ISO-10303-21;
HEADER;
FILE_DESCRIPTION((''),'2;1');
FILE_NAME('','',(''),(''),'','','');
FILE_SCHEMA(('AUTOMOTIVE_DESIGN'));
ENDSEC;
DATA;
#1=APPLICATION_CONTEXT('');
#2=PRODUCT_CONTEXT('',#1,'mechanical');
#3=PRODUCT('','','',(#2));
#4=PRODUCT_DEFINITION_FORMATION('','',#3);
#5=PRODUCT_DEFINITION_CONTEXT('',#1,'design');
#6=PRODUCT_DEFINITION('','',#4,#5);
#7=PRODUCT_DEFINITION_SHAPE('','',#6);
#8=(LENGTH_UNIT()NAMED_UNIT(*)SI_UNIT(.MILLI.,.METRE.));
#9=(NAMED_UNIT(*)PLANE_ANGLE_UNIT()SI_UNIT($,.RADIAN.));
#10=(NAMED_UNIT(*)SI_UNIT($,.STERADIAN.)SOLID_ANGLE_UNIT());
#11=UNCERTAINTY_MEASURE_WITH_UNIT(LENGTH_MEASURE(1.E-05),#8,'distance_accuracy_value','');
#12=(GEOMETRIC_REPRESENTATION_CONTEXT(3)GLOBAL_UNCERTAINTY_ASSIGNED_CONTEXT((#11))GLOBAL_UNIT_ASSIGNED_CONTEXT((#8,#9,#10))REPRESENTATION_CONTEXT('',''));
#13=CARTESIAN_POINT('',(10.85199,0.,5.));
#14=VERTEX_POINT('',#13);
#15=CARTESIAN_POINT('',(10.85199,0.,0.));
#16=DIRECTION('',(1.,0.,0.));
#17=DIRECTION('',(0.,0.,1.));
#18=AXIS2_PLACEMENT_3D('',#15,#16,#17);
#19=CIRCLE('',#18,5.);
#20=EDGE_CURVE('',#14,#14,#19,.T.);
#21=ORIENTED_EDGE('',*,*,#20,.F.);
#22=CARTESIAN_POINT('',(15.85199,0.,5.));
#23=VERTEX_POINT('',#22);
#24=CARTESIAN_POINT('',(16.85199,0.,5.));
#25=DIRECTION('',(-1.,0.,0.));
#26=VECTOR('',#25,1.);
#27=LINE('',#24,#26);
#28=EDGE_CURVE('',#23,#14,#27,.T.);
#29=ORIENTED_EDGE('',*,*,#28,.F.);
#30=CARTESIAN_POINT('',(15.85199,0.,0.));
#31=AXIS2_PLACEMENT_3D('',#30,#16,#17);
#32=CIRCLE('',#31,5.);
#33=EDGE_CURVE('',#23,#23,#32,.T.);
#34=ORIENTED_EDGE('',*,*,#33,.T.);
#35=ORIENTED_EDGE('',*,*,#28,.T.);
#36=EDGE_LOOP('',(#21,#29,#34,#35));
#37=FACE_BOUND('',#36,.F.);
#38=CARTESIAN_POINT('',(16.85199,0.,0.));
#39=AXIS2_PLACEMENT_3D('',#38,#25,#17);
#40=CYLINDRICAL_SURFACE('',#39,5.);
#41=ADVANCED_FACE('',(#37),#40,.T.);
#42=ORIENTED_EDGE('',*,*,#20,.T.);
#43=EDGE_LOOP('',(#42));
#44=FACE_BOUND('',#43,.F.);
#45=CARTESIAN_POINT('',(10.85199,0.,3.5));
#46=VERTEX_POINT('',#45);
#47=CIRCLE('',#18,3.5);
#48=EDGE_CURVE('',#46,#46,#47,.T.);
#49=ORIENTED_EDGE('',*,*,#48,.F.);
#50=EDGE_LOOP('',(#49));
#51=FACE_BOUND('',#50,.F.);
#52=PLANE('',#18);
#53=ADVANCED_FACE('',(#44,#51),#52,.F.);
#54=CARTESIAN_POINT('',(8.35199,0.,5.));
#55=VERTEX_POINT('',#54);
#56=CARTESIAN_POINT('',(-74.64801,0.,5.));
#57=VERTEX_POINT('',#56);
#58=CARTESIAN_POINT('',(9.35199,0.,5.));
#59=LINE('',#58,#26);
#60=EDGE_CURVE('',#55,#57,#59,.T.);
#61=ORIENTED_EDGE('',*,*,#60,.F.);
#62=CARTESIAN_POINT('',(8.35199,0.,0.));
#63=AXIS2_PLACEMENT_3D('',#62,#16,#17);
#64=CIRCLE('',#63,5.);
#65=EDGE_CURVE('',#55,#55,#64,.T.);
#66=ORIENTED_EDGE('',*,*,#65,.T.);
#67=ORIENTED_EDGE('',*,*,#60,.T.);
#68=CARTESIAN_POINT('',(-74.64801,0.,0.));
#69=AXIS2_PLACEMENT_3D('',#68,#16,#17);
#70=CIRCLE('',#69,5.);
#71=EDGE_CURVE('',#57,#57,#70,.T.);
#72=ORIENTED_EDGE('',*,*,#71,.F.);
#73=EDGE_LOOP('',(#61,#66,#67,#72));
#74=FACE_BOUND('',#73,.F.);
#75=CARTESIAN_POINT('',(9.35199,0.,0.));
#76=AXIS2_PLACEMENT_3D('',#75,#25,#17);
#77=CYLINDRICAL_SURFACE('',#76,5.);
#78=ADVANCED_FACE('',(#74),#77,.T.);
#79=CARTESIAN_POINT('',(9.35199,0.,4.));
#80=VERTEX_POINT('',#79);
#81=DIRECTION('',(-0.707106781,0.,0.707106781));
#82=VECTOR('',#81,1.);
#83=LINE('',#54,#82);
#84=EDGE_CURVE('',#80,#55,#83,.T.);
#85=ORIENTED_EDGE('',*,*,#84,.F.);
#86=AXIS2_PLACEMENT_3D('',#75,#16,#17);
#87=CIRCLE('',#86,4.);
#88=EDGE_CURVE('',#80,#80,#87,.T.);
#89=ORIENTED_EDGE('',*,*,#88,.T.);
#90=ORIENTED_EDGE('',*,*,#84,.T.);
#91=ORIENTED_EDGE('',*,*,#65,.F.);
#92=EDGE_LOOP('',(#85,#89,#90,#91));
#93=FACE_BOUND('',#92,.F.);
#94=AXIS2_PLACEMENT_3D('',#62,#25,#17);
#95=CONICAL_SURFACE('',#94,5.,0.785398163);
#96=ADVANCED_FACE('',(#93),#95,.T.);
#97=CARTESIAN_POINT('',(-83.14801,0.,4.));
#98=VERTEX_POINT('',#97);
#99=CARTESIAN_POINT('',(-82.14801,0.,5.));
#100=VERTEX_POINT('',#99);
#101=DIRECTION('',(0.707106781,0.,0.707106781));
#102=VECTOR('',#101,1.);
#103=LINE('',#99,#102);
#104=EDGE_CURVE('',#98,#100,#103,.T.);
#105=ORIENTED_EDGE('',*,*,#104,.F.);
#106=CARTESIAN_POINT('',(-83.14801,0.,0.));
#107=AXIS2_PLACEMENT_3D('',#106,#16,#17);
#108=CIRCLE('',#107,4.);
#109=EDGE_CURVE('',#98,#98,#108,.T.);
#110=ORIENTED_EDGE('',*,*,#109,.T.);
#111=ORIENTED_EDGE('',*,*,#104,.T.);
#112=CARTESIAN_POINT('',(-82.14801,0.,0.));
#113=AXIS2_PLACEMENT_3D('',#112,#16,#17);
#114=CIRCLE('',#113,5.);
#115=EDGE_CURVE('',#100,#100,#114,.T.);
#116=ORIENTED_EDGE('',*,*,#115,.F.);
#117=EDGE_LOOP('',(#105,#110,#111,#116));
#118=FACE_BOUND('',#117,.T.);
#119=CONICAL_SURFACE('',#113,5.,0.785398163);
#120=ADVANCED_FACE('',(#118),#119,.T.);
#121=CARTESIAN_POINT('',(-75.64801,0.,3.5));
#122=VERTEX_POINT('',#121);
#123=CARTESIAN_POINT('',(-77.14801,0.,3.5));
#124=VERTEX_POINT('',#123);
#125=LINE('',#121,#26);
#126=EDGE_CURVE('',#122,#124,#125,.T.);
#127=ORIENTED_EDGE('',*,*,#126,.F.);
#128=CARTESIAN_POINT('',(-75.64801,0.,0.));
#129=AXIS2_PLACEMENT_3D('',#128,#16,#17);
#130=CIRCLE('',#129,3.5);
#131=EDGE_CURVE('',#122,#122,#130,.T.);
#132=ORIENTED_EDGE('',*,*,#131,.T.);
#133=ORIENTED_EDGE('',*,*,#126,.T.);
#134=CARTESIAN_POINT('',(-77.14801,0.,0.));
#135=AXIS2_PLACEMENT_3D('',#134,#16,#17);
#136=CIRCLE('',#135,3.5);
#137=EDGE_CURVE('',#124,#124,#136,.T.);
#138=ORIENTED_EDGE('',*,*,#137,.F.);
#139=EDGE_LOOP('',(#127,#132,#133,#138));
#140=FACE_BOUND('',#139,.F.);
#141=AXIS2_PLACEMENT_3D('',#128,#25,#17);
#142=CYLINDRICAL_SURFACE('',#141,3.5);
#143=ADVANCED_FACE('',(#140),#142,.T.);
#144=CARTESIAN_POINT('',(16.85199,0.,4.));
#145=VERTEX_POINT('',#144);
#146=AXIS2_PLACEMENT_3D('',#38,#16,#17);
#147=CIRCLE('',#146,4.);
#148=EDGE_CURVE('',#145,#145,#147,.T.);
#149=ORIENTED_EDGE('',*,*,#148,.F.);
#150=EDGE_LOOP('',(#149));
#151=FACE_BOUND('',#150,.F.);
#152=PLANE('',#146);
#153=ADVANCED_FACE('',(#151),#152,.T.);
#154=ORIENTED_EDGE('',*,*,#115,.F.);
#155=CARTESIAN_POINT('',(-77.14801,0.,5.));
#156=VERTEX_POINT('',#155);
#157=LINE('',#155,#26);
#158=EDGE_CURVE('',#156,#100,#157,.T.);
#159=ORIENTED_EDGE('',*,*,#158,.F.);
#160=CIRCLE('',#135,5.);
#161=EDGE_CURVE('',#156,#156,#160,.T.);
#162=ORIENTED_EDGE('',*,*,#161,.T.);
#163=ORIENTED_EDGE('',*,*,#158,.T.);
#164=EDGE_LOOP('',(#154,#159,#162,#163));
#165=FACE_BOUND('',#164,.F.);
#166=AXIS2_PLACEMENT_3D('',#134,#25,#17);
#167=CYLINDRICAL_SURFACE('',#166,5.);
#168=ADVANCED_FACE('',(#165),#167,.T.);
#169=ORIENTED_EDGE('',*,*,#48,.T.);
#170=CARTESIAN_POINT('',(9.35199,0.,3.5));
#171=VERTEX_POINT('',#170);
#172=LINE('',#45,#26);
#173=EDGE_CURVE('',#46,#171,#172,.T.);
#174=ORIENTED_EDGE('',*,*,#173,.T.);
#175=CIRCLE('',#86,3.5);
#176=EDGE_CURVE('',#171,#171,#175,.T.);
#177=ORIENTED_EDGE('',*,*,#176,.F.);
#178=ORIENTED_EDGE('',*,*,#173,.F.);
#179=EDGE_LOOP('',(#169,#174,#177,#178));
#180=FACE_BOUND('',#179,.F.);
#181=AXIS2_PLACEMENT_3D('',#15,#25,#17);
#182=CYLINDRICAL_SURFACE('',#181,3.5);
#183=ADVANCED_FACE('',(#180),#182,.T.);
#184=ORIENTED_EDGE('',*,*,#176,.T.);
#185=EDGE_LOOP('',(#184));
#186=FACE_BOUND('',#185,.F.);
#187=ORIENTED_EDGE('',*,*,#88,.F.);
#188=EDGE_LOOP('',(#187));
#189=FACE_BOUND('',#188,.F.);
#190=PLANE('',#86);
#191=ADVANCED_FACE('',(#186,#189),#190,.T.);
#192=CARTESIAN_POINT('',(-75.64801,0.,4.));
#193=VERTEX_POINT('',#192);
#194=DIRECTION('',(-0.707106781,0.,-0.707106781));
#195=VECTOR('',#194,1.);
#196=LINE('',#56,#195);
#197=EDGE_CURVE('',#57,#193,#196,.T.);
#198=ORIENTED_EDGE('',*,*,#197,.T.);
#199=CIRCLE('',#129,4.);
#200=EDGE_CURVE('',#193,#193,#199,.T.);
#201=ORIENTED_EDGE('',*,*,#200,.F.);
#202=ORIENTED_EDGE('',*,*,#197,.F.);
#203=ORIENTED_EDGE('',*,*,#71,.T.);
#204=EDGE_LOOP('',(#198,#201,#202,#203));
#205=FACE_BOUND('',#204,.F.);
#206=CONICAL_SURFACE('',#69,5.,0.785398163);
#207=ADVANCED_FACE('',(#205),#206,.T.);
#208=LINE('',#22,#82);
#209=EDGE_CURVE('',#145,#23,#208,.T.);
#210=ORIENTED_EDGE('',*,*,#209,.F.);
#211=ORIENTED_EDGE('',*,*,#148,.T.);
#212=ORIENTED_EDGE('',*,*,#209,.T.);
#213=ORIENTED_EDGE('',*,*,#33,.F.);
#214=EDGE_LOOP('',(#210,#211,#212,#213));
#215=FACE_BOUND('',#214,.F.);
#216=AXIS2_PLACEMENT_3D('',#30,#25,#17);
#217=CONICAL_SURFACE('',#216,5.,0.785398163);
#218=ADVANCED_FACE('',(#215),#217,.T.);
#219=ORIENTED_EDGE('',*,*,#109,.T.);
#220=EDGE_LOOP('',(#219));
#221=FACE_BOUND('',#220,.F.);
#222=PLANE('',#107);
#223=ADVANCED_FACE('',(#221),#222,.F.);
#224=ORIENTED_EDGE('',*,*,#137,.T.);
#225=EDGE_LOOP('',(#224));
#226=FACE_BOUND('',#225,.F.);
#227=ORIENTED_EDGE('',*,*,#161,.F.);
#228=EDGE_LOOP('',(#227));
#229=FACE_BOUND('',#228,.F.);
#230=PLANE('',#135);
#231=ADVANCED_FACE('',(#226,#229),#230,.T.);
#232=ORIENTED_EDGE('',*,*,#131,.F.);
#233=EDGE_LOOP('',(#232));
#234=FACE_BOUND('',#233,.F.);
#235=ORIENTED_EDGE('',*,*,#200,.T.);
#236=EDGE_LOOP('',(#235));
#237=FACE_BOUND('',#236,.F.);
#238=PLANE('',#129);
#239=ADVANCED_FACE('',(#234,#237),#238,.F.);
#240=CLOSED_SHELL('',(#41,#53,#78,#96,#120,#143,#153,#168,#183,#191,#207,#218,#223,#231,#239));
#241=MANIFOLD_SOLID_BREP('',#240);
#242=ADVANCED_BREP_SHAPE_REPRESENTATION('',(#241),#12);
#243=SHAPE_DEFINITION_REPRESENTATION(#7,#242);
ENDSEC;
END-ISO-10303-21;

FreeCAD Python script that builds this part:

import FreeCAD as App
import Part
import Sketcher
from FreeCAD import Vector
Q = App.Units.Quantity


def edges_at(feature, points):
    """Names of the edges that pass closest to the given points."""
    edges = feature.Shape.Edges
    near = lambda p: min(range(len(edges)), key=lambda i: edges[i].distToShape(Part.Vertex(*p))[0])
    return sorted({f"Edge{near(p) + 1}" for p in points})

doc = App.newDocument("Part")
body = doc.addObject("PartDesign::Body", "Body")

# Sketch on XZ plane
sketch1 = body.newObject("Sketcher::SketchObject", "Sketch")
sketch1.AttachmentSupport = (doc.getObject("XZ_Plane"), [""])
sketch1.MapMode = "FlatFace"
sketch1.addGeometry(Part.LineSegment(Vector(-83.1, 5, 0), Vector(-83.1, 0, 0)), False)
sketch1.addGeometry(Part.LineSegment(Vector(-83.1, 0, 0), Vector(16.9, 0, 0)), False)
sketch1.addGeometry(Part.LineSegment(Vector(16.9, 0, 0), Vector(16.9, 5, 0)), False)
sketch1.addGeometry(Part.LineSegment(Vector(16.9, 5, 0), Vector(10.9, 5, 0)), False)
sketch1.addGeometry(Part.LineSegment(Vector(10.9, 5, 0), Vector(10.9, 3.5, 0)), False)
sketch1.addGeometry(Part.LineSegment(Vector(10.9, 3.5, 0), Vector(9.4, 3.5, 0)), False)
sketch1.addGeometry(Part.LineSegment(Vector(9.4, 3.5, 0), Vector(9.4, 5, 0)), False)
sketch1.addGeometry(Part.LineSegment(Vector(9.4, 5, 0), Vector(-75.6, 5, 0)), False)
sketch1.addGeometry(Part.LineSegment(Vector(-75.6, 5, 0), Vector(-75.6, 3.5, 0)), False)
sketch1.addGeometry(Part.LineSegment(Vector(-75.6, 3.5, 0), Vector(-77.1, 3.5, 0)), False)
sketch1.addGeometry(Part.LineSegment(Vector(-77.1, 3.5, 0), Vector(-77.1, 5, 0)), False)
sketch1.addGeometry(Part.LineSegment(Vector(-77.1, 5, 0), Vector(-83.1, 5, 0)), False)
sketch1.addConstraint(Sketcher.Constraint("Coincident", 0, 2, 1, 1))
sketch1.addConstraint(Sketcher.Constraint("Coincident", 1, 2, 2, 1))
sketch1.addConstraint(Sketcher.Constraint("Coincident", 2, 2, 3, 1))
sketch1.addConstraint(Sketcher.Constraint("Coincident", 3, 2, 4, 1))
sketch1.addConstraint(Sketcher.Constraint("Coincident", 4, 2, 5, 1))
sketch1.addConstraint(Sketcher.Constraint("Coincident", 5, 2, 6, 1))
sketch1.addConstraint(Sketcher.Constraint("Coincident", 6, 2, 7, 1))
sketch1.addConstraint(Sketcher.Constraint("Coincident", 7, 2, 8, 1))
sketch1.addConstraint(Sketcher.Constraint("Coincident", 8, 2, 9, 1))
sketch1.addConstraint(Sketcher.Constraint("Coincident", 9, 2, 10, 1))
sketch1.addConstraint(Sketcher.Constraint("Coincident", 10, 2, 11, 1))
sketch1.addConstraint(Sketcher.Constraint("Coincident", 11, 2, 0, 1))
sketch1.addConstraint(Sketcher.Constraint("Vertical", 0))
sketch1.addConstraint(Sketcher.Constraint("Horizontal", 1))
sketch1.addConstraint(Sketcher.Constraint("Vertical", 2))
sketch1.addConstraint(Sketcher.Constraint("Horizontal", 3))
sketch1.addConstraint(Sketcher.Constraint("Vertical", 4))
sketch1.addConstraint(Sketcher.Constraint("Horizontal", 5))
sketch1.addConstraint(Sketcher.Constraint("Vertical", 6))
sketch1.addConstraint(Sketcher.Constraint("Horizontal", 7))
sketch1.addConstraint(Sketcher.Constraint("Vertical", 8))
sketch1.addConstraint(Sketcher.Constraint("Horizontal", 9))
sketch1.addConstraint(Sketcher.Constraint("Vertical", 10))
sketch1.addConstraint(Sketcher.Constraint("Horizontal", 11))
sketch1.addConstraint(Sketcher.Constraint("PointOnObject", 0, 2, -1))
sketch1.addConstraint(Sketcher.Constraint("Horizontal", 3, 2, 6, 2))
sketch1.addConstraint(Sketcher.Constraint("Horizontal", 5, 2, 8, 2))
sketch1.addConstraint(Sketcher.Constraint("Horizontal", 7, 2, 10, 2))
sketch1.addConstraint(Sketcher.Constraint("Equal", 5, 9))
sketch1.addConstraint(Sketcher.Constraint("Equal", 3, 11))
sketch1.addConstraint(Sketcher.Constraint("Equal", 9, 4))
sketch1.addConstraint(Sketcher.Constraint("DistanceX", 1, 1, 1, 2, Q("100 mm")))
sketch1.addConstraint(Sketcher.Constraint("DistanceX", 3, 2, 3, 1, Q("6 mm")))
sketch1.addConstraint(Sketcher.Constraint("DistanceX", 7, 2, 7, 1, Q("85 mm")))
sketch1.addConstraint(Sketcher.Constraint("DistanceY", 0, 2, 0, 1, Q("5 mm")))
sketch1.addConstraint(Sketcher.Constraint("DistanceX", 0, 2, -1, 1, Q("83.14801 mm")))
revolution = body.newObject("PartDesign::Revolution", "Revolution")
revolution.Profile = sketch1
revolution.ReferenceAxis = (sketch1, ["H_Axis"])
revolution.Angle = 360
doc.recompute()

chamfer = body.newObject("PartDesign::Chamfer", "Chamfer")
chamfer.Base = (revolution, edges_at(revolution, [
    (-83.148, 0, -5),
    (-75.648, 0, -5),
    (16.852, 0, -5),
    (9.352, 0, -5),
]))
chamfer.Size = 1

doc.recompute()
